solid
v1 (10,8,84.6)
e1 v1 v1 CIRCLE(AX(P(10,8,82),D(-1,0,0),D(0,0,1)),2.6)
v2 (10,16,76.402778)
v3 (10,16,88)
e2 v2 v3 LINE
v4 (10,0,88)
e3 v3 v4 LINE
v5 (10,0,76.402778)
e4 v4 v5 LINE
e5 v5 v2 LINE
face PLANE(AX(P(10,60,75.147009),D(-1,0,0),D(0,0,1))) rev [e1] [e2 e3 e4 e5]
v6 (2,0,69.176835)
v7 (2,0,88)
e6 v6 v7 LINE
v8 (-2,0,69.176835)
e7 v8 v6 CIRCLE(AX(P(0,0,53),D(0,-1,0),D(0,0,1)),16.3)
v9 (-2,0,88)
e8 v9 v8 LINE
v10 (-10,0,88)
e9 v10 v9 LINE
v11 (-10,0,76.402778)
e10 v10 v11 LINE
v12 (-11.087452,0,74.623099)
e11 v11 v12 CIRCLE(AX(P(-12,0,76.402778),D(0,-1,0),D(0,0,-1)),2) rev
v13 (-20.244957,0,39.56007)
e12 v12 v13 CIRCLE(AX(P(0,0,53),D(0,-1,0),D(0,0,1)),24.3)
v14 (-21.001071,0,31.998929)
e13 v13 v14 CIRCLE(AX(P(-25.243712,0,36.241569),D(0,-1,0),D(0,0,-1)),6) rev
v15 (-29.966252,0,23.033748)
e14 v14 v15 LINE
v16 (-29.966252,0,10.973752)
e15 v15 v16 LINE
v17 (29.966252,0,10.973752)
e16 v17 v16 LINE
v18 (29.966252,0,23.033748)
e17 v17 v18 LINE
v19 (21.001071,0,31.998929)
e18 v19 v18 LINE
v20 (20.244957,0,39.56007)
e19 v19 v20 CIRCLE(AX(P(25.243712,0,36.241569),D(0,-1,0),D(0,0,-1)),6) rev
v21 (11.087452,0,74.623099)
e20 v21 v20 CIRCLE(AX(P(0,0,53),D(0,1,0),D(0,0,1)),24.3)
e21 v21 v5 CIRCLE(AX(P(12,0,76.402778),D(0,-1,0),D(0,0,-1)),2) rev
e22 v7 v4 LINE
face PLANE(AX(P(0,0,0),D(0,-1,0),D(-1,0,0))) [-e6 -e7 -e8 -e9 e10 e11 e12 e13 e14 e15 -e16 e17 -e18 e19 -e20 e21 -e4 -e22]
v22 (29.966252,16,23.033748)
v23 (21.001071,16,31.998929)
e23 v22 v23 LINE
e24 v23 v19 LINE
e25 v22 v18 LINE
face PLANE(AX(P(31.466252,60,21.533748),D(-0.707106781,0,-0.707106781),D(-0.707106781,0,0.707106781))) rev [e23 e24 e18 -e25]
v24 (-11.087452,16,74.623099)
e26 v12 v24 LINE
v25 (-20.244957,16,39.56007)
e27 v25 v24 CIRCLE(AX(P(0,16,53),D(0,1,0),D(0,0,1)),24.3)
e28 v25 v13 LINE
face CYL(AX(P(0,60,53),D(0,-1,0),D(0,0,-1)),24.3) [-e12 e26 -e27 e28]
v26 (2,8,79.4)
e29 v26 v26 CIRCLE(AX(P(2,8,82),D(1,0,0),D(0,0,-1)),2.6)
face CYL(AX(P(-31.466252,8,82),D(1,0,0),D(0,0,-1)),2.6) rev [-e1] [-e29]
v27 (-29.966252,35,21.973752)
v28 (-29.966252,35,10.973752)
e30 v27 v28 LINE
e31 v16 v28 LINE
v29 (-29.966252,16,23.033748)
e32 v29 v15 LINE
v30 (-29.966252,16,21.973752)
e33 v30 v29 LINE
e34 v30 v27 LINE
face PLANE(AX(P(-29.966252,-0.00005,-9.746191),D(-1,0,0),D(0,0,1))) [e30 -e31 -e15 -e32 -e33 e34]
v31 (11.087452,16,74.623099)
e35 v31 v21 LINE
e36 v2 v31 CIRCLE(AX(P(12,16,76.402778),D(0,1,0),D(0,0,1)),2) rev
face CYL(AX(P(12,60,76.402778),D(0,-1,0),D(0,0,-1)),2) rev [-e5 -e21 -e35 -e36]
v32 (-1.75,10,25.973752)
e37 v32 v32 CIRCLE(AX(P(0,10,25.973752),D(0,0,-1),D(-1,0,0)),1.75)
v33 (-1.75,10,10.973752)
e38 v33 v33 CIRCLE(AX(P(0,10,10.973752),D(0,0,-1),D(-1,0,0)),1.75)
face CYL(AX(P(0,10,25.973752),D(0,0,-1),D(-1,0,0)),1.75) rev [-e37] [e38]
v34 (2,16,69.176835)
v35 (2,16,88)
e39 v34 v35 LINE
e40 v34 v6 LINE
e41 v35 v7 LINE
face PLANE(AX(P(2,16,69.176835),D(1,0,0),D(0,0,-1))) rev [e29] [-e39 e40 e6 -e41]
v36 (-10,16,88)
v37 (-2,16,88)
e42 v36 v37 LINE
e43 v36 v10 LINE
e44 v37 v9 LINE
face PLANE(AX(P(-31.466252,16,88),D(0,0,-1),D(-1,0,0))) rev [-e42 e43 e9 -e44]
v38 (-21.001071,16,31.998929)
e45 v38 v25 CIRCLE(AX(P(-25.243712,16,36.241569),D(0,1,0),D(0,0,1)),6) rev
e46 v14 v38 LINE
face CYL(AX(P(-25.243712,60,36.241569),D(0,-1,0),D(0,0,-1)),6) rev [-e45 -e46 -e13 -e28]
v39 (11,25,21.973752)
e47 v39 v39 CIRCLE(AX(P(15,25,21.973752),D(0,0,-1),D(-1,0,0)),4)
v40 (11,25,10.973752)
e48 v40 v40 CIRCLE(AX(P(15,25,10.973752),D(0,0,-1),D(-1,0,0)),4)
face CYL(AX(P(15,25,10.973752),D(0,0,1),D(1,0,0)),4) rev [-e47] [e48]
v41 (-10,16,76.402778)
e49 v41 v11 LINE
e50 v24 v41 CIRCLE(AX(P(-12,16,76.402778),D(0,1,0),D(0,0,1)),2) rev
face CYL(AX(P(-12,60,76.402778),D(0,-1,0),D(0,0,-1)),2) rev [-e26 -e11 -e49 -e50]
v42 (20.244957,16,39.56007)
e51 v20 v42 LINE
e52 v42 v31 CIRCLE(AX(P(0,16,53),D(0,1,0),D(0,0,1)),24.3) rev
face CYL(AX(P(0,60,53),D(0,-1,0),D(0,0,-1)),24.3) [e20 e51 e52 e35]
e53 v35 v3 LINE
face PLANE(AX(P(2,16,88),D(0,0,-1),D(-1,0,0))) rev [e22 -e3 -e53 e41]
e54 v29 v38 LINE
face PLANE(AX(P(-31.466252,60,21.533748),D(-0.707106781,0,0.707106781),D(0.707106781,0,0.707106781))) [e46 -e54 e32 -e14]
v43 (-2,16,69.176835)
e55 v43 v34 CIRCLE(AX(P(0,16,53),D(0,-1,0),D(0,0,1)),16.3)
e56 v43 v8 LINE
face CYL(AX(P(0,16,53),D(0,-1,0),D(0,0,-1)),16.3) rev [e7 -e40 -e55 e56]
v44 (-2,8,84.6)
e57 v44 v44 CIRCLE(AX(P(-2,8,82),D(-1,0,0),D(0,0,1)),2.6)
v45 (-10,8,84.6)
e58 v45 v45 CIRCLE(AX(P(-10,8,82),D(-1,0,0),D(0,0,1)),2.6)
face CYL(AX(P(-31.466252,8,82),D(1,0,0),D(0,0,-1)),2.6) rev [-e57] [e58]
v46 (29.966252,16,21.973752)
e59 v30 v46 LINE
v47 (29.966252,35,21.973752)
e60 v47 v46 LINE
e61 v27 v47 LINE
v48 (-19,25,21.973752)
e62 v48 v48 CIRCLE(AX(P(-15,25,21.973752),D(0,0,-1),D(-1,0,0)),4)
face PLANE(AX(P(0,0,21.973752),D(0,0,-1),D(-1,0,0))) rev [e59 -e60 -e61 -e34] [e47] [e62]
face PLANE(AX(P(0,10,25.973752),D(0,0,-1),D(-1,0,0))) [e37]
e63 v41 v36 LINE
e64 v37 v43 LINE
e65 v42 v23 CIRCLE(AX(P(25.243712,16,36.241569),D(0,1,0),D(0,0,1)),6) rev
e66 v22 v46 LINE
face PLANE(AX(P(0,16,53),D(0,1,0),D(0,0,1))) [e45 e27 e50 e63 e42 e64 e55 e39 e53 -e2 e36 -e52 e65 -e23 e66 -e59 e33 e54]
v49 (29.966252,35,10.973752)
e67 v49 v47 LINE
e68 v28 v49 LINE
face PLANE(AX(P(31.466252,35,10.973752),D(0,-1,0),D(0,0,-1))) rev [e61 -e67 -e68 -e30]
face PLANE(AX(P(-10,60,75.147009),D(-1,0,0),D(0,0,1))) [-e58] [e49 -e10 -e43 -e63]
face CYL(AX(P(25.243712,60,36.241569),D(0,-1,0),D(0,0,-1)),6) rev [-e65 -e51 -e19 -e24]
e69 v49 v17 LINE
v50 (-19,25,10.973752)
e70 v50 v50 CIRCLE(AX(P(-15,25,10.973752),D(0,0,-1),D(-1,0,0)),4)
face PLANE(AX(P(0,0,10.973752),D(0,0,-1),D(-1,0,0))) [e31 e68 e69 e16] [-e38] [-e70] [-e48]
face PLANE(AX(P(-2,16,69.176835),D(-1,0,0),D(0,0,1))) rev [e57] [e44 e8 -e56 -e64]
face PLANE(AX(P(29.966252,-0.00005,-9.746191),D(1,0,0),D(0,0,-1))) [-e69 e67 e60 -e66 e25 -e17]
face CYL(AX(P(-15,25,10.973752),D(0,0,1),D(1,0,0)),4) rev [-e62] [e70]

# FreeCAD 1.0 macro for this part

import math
import FreeCAD as App
import Part
import Sketcher

V = App.Vector
Q = App.Units.Quantity


def edges_at(feature, points):
    """Names of the edges that pass closest to the given points."""
    edges = feature.Shape.Edges
    near = lambda p: min(range(len(edges)), key=lambda i: edges[i].distToShape(Part.Vertex(*p))[0])
    return sorted({f"Edge{near(p) + 1}" for p in points})


def add_polygon(sketch, points):
    """Adds a closed chain of lines whose ends are joined by coincident constraints."""
    first, n = sketch.GeometryCount, len(points)
    for a, b in zip(points, points[1:] + points[:1]):
        sketch.addGeometry(Part.LineSegment(App.Vector(*a, 0), App.Vector(*b, 0)), False)
    for i in range(n):
        sketch.addConstraint(Sketcher.Constraint("Coincident", first + i, 2, first + (i + 1) % n, 1))

doc = App.newDocument("Part")
body = doc.addObject("PartDesign::Body", "Body")

# Sketch on XZ plane
sketch1 = body.newObject("Sketcher::SketchObject", "Sketch")
sketch1.AttachmentSupport = (doc.getObject("XZ_Plane"), [""])
sketch1.MapMode = "FlatFace"
add_polygon(sketch1, [(0, 29), (-28.6, 0.4), (-31.5, 3.2), (0, 34.6), (31.5, 3.2), (28.6, 0.4)])  # lines 0-5
sketch1.addConstraint(Sketcher.Constraint("Symmetric", 1, 2, 3, 2, -2))
sketch1.addConstraint(Sketcher.Constraint("Symmetric", 0, 2, 4, 2, -2))
sketch1.addConstraint(Sketcher.Constraint("PointOnObject", 2, 2, -2))
sketch1.addConstraint(Sketcher.Constraint("PointOnObject", 5, 2, -2))
sketch1.addConstraint(Sketcher.Constraint("Perpendicular", 0, 1))
sketch1.addConstraint(Sketcher.Constraint("Perpendicular", 1, 2))
sketch1.addConstraint(Sketcher.Constraint("Perpendicular", 2, 3))
sketch1.addConstraint(Sketcher.Constraint("Distance", 1, Q("4 mm")))
sketch1.addConstraint(Sketcher.Constraint("Distance", 0, Q("40.5 mm")))
sketch1.addConstraint(Sketcher.Constraint("DistanceY", -1, 1, 1, 2, Q("3.181981 mm")))
pad1 = body.newObject("PartDesign::Pad", "Pad")
pad1.Profile = sketch1
pad1.Length = 60
pad1.Reversed = True

# Sketch on XZ plane
sketch2 = body.newObject("Sketcher::SketchObject", "Sketch001")
sketch2.AttachmentSupport = (doc.getObject("XZ_Plane"), [""])
sketch2.MapMode = "FlatFace"
sketch2.addGeometry(Part.LineSegment(V(-31.5, 3.2, 0), V(-31.5, 88, 0)), False)
sketch2.addGeometry(Part.LineSegment(V(-31.5, 88, 0), V(-2, 88, 0)), False)
sketch2.addGeometry(Part.LineSegment(V(-2, 88, 0), V(-2, 69.2, 0)), False)
sketch2.addGeometry(Part.ArcOfCircle(Part.Circle(V(0, 53, 0), V(0, 0, 1), 16.3), math.radians(97), math.radians(443)), False)
sketch2.addGeometry(Part.LineSegment(V(2, 69.2, 0), V(2, 88, 0)), False)
sketch2.addGeometry(Part.LineSegment(V(2, 88, 0), V(31.5, 88, 0)), False)
sketch2.addGeometry(Part.LineSegment(V(31.5, 88, 0), V(31.5, 3.2, 0)), False)
sketch2.addGeometry(Part.LineSegment(V(31.5, 3.2, 0), V(0, 34.6, 0)), False)
sketch2.addGeometry(Part.LineSegment(V(0, 34.6, 0), V(-31.5, 3.2, 0)), False)
sketch2.addConstraint(Sketcher.Constraint("Coincident", 0, 2, 1, 1))
sketch2.addConstraint(Sketcher.Constraint("Coincident", 1, 2, 2, 1))
sketch2.addConstraint(Sketcher.Constraint("Coincident", 2, 2, 3, 1))
sketch2.addConstraint(Sketcher.Constraint("Coincident", 3, 2, 4, 1))
sketch2.addConstraint(Sketcher.Constraint("Coincident", 4, 2, 5, 1))
sketch2.addConstraint(Sketcher.Constraint("Coincident", 5, 2, 6, 1))
sketch2.addConstraint(Sketcher.Constraint("Coincident", 6, 2, 7, 1))
sketch2.addConstraint(Sketcher.Constraint("Coincident", 7, 2, 8, 1))
sketch2.addConstraint(Sketcher.Constraint("Coincident", 8, 2, 0, 1))
sketch2.addConstraint(Sketcher.Constraint("Vertical", 0))
sketch2.addConstraint(Sketcher.Constraint("Horizontal", 1))
sketch2.addConstraint(Sketcher.Constraint("Vertical", 2))
sketch2.addConstraint(Sketcher.Constraint("Vertical", 4))
sketch2.addConstraint(Sketcher.Constraint("Horizontal", 5))
sketch2.addConstraint(Sketcher.Constraint("Vertical", 6))
sketch2.addConstraint(Sketcher.Constraint("Symmetric", 2, 2, 3, 2, -2))
sketch2.addConstraint(Sketcher.Constraint("Symmetric", 0, 2, 5, 2, -2))
sketch2.addConstraint(Sketcher.Constraint("PointOnObject", 7, 2, -2))
sketch2.addConstraint(Sketcher.Constraint("Perpendicular", 7, 8))
sketch2.addConstraint(Sketcher.Constraint("Horizontal", 6, 2, 8, 2))
sketch2.addConstraint(Sketcher.Constraint("Radius", 3, Q("16.3 mm")))
sketch2.addConstraint(Sketcher.Constraint("DistanceY", -1, 1, 3, 3, Q("53 mm")))
sketch2.addConstraint(Sketcher.Constraint("DistanceY", -1, 1, 0, 2, Q("88 mm")))
sketch2.addConstraint(Sketcher.Constraint("DistanceX", 1, 2, -1, 1, Q("2 mm")))
sketch2.addConstraint(Sketcher.Constraint("Distance", 7, Q("44.5 mm")))
sketch2.addConstraint(Sketcher.Constraint("DistanceY", 0, 1, 0, 2, Q("84.818019 mm")))
pad2 = body.newObject("PartDesign::Pad", "Pad001")
pad2.Profile = sketch2
pad2.Length = 16
pad2.Reversed = True

# Sketch on an angled plane
sketch3 = body.newObject("Sketcher::SketchObject", "Sketch002")
sketch3.Placement = App.Placement(V(17.324116, 0, 17.324116), App.Rotation(V(0.707106781, 0, -0.707106781), V(0, 0.999999999, 0), V(0.707106781, 0, 0.707106781), "ZXY"))
sketch3.addGeometry(Part.LineSegment(V(2.7, 20, 0), V(2.7, 50, 0)), False)
sketch3.addGeometry(Part.ArcOfCircle(Part.Circle(V(0, 50, 0), V(0, 0, 1), 2.8), math.radians(0), math.radians(180)), False)
sketch3.addGeometry(Part.LineSegment(V(-2.7, 50, 0), V(-2.7, 20, 0)), False)
sketch3.addGeometry(Part.ArcOfCircle(Part.Circle(V(0, 20, 0), V(0, 0, 1), 2.8), math.radians(180), math.radians(360)), False)
sketch3.addConstraint(Sketcher.Constraint("Tangent", 0, 2, 1, 1))
sketch3.addConstraint(Sketcher.Constraint("Tangent", 1, 2, 2, 1))
sketch3.addConstraint(Sketcher.Constraint("Tangent", 2, 2, 3, 1))
sketch3.addConstraint(Sketcher.Constraint("Tangent", 3, 2, 0, 1))
sketch3.addConstraint(Sketcher.Constraint("Vertical", 0))
sketch3.addConstraint(Sketcher.Constraint("Vertical", 2))
sketch3.addConstraint(Sketcher.Constraint("PointOnObject", 1, 3, -2))
sketch3.addConstraint(Sketcher.Constraint("DistanceY", 0, 1, 0, 2, Q("30 mm")))
sketch3.addConstraint(Sketcher.Constraint("Radius", 1, Q("2.75 mm")))
sketch3.addConstraint(Sketcher.Constraint("DistanceY", -1, 1, 1, 3, Q("50 mm")))
pocket1 = body.newObject("PartDesign::Pocket", "Pocket")
pocket1.Profile = sketch3
pocket1.Type = "ThroughAll"
doc.recompute()

mirrored = body.newObject("PartDesign::Mirrored", "Mirrored")
mirrored.Originals = [pocket1]
mirrored.MirrorPlane = (doc.getObject("YZ_Plane"), [""])
body.Tip = mirrored

# Sketch on XZ plane
sketch4 = body.newObject("Sketcher::SketchObject", "Sketch003")
sketch4.AttachmentSupport = (doc.getObject("XZ_Plane"), [""])
sketch4.MapMode = "FlatFace"
sketch4.addGeometry(Part.LineSegment(V(-17, 36, 0), V(-31, 22, 0)), False)
sketch4.addGeometry(Part.LineSegment(V(-31, 22, 0), V(-31, 88, 0)), False)
sketch4.addGeometry(Part.LineSegment(V(-31, 88, 0), V(-10, 88, 0)), False)
sketch4.addGeometry(Part.LineSegment(V(-10, 88, 0), V(-10, 75, 0)), False)
sketch4.addGeometry(Part.ArcOfCircle(Part.Circle(V(0, 53, 0), V(0, 0, 1), 24), math.radians(114), math.radians(225)), False)
sketch4.addConstraint(Sketcher.Constraint("Coincident", 0, 2, 1, 1))
sketch4.addConstraint(Sketcher.Constraint("Coincident", 1, 2, 2, 1))
sketch4.addConstraint(Sketcher.Constraint("Coincident", 2, 2, 3, 1))
sketch4.addConstraint(Sketcher.Constraint("Coincident", 3, 2, 4, 1))
sketch4.addConstraint(Sketcher.Constraint("Coincident", 4, 2, 0, 1))
sketch4.addConstraint(Sketcher.Constraint("Vertical", 1))
sketch4.addConstraint(Sketcher.Constraint("Horizontal", 2))
sketch4.addConstraint(Sketcher.Constraint("Vertical", 3))
sketch4.addConstraint(Sketcher.Constraint("PointOnObject", 4, 3, -2))
sketch4.addConstraint(Sketcher.Constraint("Radius", 4, Q("24.3 mm")))
sketch4.addConstraint(Sketcher.Constraint("Angle", 0, Q("-135 deg")))
sketch4.addConstraint(Sketcher.Constraint("DistanceY", -1, 1, 4, 3, Q("53 mm")))
sketch4.addConstraint(Sketcher.Constraint("DistanceY", -1, 1, 1, 2, Q("88 mm")))
sketch4.addConstraint(Sketcher.Constraint("DistanceX", 2, 2, -1, 1, Q("10 mm")))
sketch4.addConstraint(Sketcher.Constraint("Distance", 0, Q("20.2 mm")))
sketch4.addConstraint(Sketcher.Constraint("DistanceX", 2, 1, 2, 2, Q("21.466252 mm")))
pocket2 = body.newObject("PartDesign::Pocket", "Pocket001")
pocket2.Profile = sketch4
pocket2.Type = "ThroughAll"
doc.recompute()

mirrored2 = body.newObject("PartDesign::Mirrored", "Mirrored001")
mirrored2.Originals = [pocket2]
mirrored2.MirrorPlane = (doc.getObject("YZ_Plane"), [""])
body.Tip = mirrored2
doc.recompute()

fillet = body.newObject("PartDesign::Fillet", "Fillet")
fillet.Base = (mirrored2, edges_at(mirrored2, [(10, 8, 75.147), (-10, 8, 75.147)]))
fillet.Radius = 2

# Sketch on YZ plane
sketch5 = body.newObject("Sketcher::SketchObject", "Sketch004")
sketch5.AttachmentSupport = (doc.getObject("YZ_Plane"), [""])
sketch5.MapMode = "FlatFace"
sketch5.addGeometry(Part.Circle(V(8, 82, 0), V(0, 0, 1), 2.6), False)
sketch5.addConstraint(Sketcher.Constraint("Diameter", 0, Q("5.2 mm")))
sketch5.addConstraint(Sketcher.Constraint("DistanceX", -1, 1, 0, 3, Q("8 mm")))
sketch5.addConstraint(Sketcher.Constraint("DistanceY", -1, 1, 0, 3, Q("82 mm")))
pocket3 = body.newObject("PartDesign::Pocket", "Pocket002")
pocket3.Profile = sketch5
pocket3.Type = "ThroughAll"
pocket3.Midplane = True

# Sketch on an angled plane
sketch6 = body.newObject("Sketcher::SketchObject", "Sketch005")
sketch6.Placement = App.Placement(V(-17.324116, 0, 17.324116), App.Rotation(V(0.707106781, 0, 0.707106781), V(0, 0.999999999, 0), V(-0.707106781, 0, 0.707106781), "ZXY"))
add_polygon(sketch6, [(-40, 69), (-40, 16), (38, 16), (38, 69)])  # lines 0-3
sketch6.addConstraint(Sketcher.Constraint("Vertical", 0))
sketch6.addConstraint(Sketcher.Constraint("Horizontal", 1))
sketch6.addConstraint(Sketcher.Constraint("Vertical", 2))
sketch6.addConstraint(Sketcher.Constraint("Horizontal", 3))
sketch6.addConstraint(Sketcher.Constraint("DistanceY", -1, 1, 0, 2, Q("16 mm")))
sketch6.addConstraint(Sketcher.Constraint("DistanceX", 1, 1, 1, 2, Q("78.42371 mm")))
sketch6.addConstraint(Sketcher.Constraint("DistanceY", 0, 2, 0, 1, Q("52.802384 mm")))
sketch6.addConstraint(Sketcher.Constraint("DistanceX", 0, 2, -1, 1, Q("40.10424 mm")))
pocket4 = body.newObject("PartDesign::Pocket", "Pocket003")
pocket4.Profile = sketch6
pocket4.Type = "ThroughAll"
pocket4.Midplane = True

# Sketch on XZ plane
sketch7 = body.newObject("Sketcher::SketchObject", "Sketch006")
sketch7.AttachmentSupport = (doc.getObject("XZ_Plane"), [""])
sketch7.MapMode = "FlatFace"
sketch7.AttachmentOffset = App.Placement(V(0, 0, -16), App.Rotation())
add_polygon(sketch7, [(-25, -9), (-25, 31), (26, 31), (26, -9)])  # lines 0-3
sketch7.addConstraint(Sketcher.Constraint("Vertical", 0))
sketch7.addConstraint(Sketcher.Constraint("Horizontal", 1))
sketch7.addConstraint(Sketcher.Constraint("Vertical", 2))
sketch7.addConstraint(Sketcher.Constraint("Horizontal", 3))
sketch7.addConstraint(Sketcher.Constraint("DistanceX", 1, 1, 1, 2, Q("51.319796 mm")))
sketch7.addConstraint(Sketcher.Constraint("DistanceY", 0, 1, 0, 2, Q("40.051164 mm")))
sketch7.addConstraint(Sketcher.Constraint("DistanceX", -1, 1, 1, 2, Q("25.989661 mm")))
sketch7.addConstraint(Sketcher.Constraint("DistanceY", 2, 2, -1, 1, Q("9.390492 mm")))
pad3 = body.newObject("PartDesign::Pad", "Pad002")
pad3.Profile = sketch7
pad3.Length = 16

# Sketch on XZ plane
sketch8 = body.newObject("Sketcher::SketchObject", "Sketch007")
sketch8.AttachmentSupport = (doc.getObject("XZ_Plane"), [""])
sketch8.MapMode = "FlatFace"
sketch8.AttachmentOffset = App.Placement(V(0, 0, -16), App.Rotation())
add_polygon(sketch8, [(-45, -12), (-45, 22), (46, 22), (46, -12)])  # lines 0-3
sketch8.addConstraint(Sketcher.Constraint("Vertical", 0))
sketch8.addConstraint(Sketcher.Constraint("Horizontal", 1))
sketch8.addConstraint(Sketcher.Constraint("Vertical", 2))
sketch8.addConstraint(Sketcher.Constraint("Horizontal", 3))
sketch8.addConstraint(Sketcher.Constraint("DistanceX", 1, 1, 1, 2, Q("91.777169 mm")))
sketch8.addConstraint(Sketcher.Constraint("DistanceY", 0, 1, 0, 2, Q("33.812641 mm")))
sketch8.addConstraint(Sketcher.Constraint("DistanceY", 2, 2, -1, 1, Q("11.838889 mm")))
sketch8.addConstraint(Sketcher.Constraint("DistanceX", 0, 2, -1, 1, Q("45.435737 mm")))
pocket5 = body.newObject("PartDesign::Pocket", "Pocket004")
pocket5.Profile = sketch8
pocket5.Type = "ThroughAll"
pocket5.Reversed = True

# Sketch on XY plane
sketch9 = body.newObject("Sketcher::SketchObject", "Sketch008")
sketch9.AttachmentSupport = (doc.getObject("XY_Plane"), [""])
sketch9.MapMode = "FlatFace"
sketch9.AttachmentOffset = App.Placement(V(0, 0, 21.973752), App.Rotation())
add_polygon(sketch9, [(31.5, 35), (31.5, 0), (-31.5, 0), (-31.5, 35)])  # lines 0-3
sketch9.addGeometry(Part.Circle(V(15, 25, 0), V(0, 0, 1), 4), False)  # 4
sketch9.addGeometry(Part.Circle(V(-15, 25, 0), V(0, 0, 1), 4), False)  # 5
sketch9.addConstraint(Sketcher.Constraint("Vertical", 0))
sketch9.addConstraint(Sketcher.Constraint("Horizontal", 1))
sketch9.addConstraint(Sketcher.Constraint("Vertical", 2))
sketch9.addConstraint(Sketcher.Constraint("Horizontal", 3))
sketch9.addConstraint(Sketcher.Constraint("Equal", 4, 5))
sketch9.addConstraint(Sketcher.Constraint("Symmetric", 0, 2, 1, 2, -1, 1))
sketch9.addConstraint(Sketcher.Constraint("Symmetric", 4, 3, 5, 3, -2))
sketch9.addConstraint(Sketcher.Constraint("Diameter", 4, Q("8 mm")))
sketch9.addConstraint(Sketcher.Constraint("DistanceY", 0, 2, 0, 1, Q("35 mm")))
sketch9.addConstraint(Sketcher.Constraint("DistanceX", -1, 1, 4, 3, Q("15 mm")))
sketch9.addConstraint(Sketcher.Constraint("DistanceY", -1, 1, 4, 3, Q("25 mm")))
sketch9.addConstraint(Sketcher.Constraint("DistanceX", 1, 2, 1, 1, Q("62.932504 mm")))
pad4 = body.newObject("PartDesign::Pad", "Pad003")
pad4.Profile = sketch9
pad4.Length = 11
pad4.Reversed = True

# Sketch on XZ plane
sketch10 = body.newObject("Sketcher::SketchObject", "Sketch009")
sketch10.AttachmentSupport = (doc.getObject("XZ_Plane"), [""])
sketch10.MapMode = "FlatFace"
sketch10.AttachmentOffset = App.Placement(V(0, 0, -16), App.Rotation())
add_polygon(sketch10, [(-81, -31), (-81, 139), (76, 139), (76, -31)])  # lines 0-3
add_polygon(sketch10, [(30, 112), (-30, 112), (-30, -10), (30, -10)])  # lines 4-7
sketch10.addConstraint(Sketcher.Constraint("Vertical", 0))
sketch10.addConstraint(Sketcher.Constraint("Horizontal", 1))
sketch10.addConstraint(Sketcher.Constraint("Vertical", 2))
sketch10.addConstraint(Sketcher.Constraint("Horizontal", 3))
sketch10.addConstraint(Sketcher.Constraint("Horizontal", 4))
sketch10.addConstraint(Sketcher.Constraint("Vertical", 5))
sketch10.addConstraint(Sketcher.Constraint("Horizontal", 6))
sketch10.addConstraint(Sketcher.Constraint("Vertical", 7))
sketch10.addConstraint(Sketcher.Constraint("DistanceY", 5, 2, 5, 1, Q("122.234 mm")))
sketch10.addConstraint(Sketcher.Constraint("DistanceX", 1, 1, 1, 2, Q("157.086871 mm")))
sketch10.addConstraint(Sketcher.Constraint("DistanceX", 0, 2, 4, 2, Q("50.9422 mm")))
sketch10.addConstraint(Sketcher.Constraint("DistanceX", 4, 2, 4, 1, Q("59.932504 mm")))
sketch10.addConstraint(Sketcher.Constraint("DistanceY", 0, 1, 0, 2, Q("169.783275 mm")))
sketch10.addConstraint(Sketcher.Constraint("DistanceX", 0, 2, -1, 1, Q("80.908452 mm")))
sketch10.addConstraint(Sketcher.Constraint("DistanceY", -1, 1, 4, 2, Q("112.487809 mm")))
sketch10.addConstraint(Sketcher.Constraint("DistanceY", 3, 2, 4, 2, Q("143.643621 mm")))
pocket6 = body.newObject("PartDesign::Pocket", "Pocket005")
pocket6.Profile = sketch10
pocket6.Type = "ThroughAll"
pocket6.Midplane = True
doc.recompute()

fillet2 = body.newObject("PartDesign::Fillet", "Fillet001")
fillet2.Base = (pocket6, edges_at(pocket6, [(17.183, 8, 35.817), (-17.183, 8, 35.817)]))
fillet2.Radius = 6

# Sketch on XY plane
sketch11 = body.newObject("Sketcher::SketchObject", "Sketch010")
sketch11.AttachmentSupport = (doc.getObject("XY_Plane"), [""])
sketch11.MapMode = "FlatFace"
sketch11.AttachmentOffset = App.Placement(V(0, 0, 10.973752), App.Rotation())
sketch11.addGeometry(Part.Circle(V(0, 10, 0), V(0, 0, 1), 1.8), False)
sketch11.addConstraint(Sketcher.Constraint("PointOnObject", 0, 3, -2))
sketch11.addConstraint(Sketcher.Constraint("Diameter", 0, Q("3.5 mm")))
sketch11.addConstraint(Sketcher.Constraint("DistanceY", -1, 1, 0, 3, Q("10 mm")))
pocket7 = body.newObject("PartDesign::Pocket", "Pocket006")
pocket7.Profile = sketch11
pocket7.Length = 15
pocket7.Reversed = True

# Sketch on XZ plane
sketch12 = body.newObject("Sketcher::SketchObject", "Sketch011")
sketch12.AttachmentSupport = (doc.getObject("XZ_Plane"), [""])
sketch12.MapMode = "FlatFace"
sketch12.AttachmentOffset = App.Placement(V(0, 0, -16), App.Rotation())
add_polygon(sketch12, [(26, 27), (22.3, 30.7), (26, 30.7)])  # lines 0-2
add_polygon(sketch12, [(-26, 27), (-26, 30.7), (-22.3, 30.7)])  # lines 3-5
sketch12.addConstraint(Sketcher.Constraint("Horizontal", 1))
sketch12.addConstraint(Sketcher.Constraint("Vertical", 2))
sketch12.addConstraint(Sketcher.Constraint("Vertical", 3))
sketch12.addConstraint(Sketcher.Constraint("Horizontal", 4))
sketch12.addConstraint(Sketcher.Constraint("Symmetric", 1, 2, 3, 2, -2))
sketch12.addConstraint(Sketcher.Constraint("Perpendicular", 0, 5))
sketch12.addConstraint(Sketcher.Constraint("Horizontal", 2, 2, 5, 2))
sketch12.addConstraint(Sketcher.Constraint("Equal", 1, 4))
sketch12.addConstraint(Sketcher.Constraint("Distance", 0, Q("5.16235 mm")))
sketch12.addConstraint(Sketcher.Constraint("DistanceX", -1, 1, 1, 2, Q("25.989661 mm")))
sketch12.addConstraint(Sketcher.Constraint("DistanceY", -1, 1, 2, 2, Q("27.010339 mm")))
pocket8 = body.newObject("PartDesign::Pocket", "Pocket007")
pocket8.Profile = sketch12
pocket8.Length = 30
pocket8.Reversed = True

doc.recompute()
